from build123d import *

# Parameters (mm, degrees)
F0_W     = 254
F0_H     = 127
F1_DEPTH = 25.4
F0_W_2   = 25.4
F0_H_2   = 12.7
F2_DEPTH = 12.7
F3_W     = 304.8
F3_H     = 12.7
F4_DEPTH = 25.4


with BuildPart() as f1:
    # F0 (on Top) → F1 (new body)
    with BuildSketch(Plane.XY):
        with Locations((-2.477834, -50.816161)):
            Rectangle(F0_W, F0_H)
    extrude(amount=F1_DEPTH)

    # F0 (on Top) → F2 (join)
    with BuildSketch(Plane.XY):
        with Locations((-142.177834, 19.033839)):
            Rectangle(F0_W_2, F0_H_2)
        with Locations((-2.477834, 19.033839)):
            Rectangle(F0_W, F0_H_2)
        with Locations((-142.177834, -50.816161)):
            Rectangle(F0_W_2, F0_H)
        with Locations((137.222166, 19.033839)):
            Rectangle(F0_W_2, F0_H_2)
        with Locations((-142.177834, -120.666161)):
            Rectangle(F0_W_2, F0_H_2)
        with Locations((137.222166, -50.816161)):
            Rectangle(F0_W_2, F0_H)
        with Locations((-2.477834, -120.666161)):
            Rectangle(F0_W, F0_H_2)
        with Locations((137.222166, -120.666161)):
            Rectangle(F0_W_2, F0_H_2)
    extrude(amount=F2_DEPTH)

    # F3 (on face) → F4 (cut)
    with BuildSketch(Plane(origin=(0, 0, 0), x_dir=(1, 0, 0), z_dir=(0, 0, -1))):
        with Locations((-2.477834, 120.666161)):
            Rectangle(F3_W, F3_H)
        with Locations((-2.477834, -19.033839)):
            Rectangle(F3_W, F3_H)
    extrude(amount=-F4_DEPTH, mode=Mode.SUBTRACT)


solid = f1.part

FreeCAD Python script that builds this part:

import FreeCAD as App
import Part
import Sketcher

V = App.Vector
Q = App.Units.Quantity

doc = App.newDocument("Part")
body = doc.addObject("PartDesign::Body", "Body")

# Sketch on XY plane
sketch1 = doc.addObject("Sketcher::SketchObject", "Sketch")
body.addObject(sketch1)
sketch1.AttachmentSupport = (doc.XY_Plane, [""])
sketch1.MapMode = "FlatFace"
sketch1.addGeometry([
    Part.LineSegment(V(-129.477834, 12.683839, 0), V(-129.477834, -114.316161, 0)),
    Part.LineSegment(V(-129.477834, -114.316161, 0), V(124.522166, -114.316161, 0)),
    Part.LineSegment(V(124.522166, -114.316161, 0), V(124.522166, 12.683839, 0)),
    Part.LineSegment(V(124.522166, 12.683839, 0), V(-129.477834, 12.683839, 0)),
], False)
sketch1.addConstraint([
    Sketcher.Constraint("Coincident", 0, 2, 1, 1),
    Sketcher.Constraint("Coincident", 1, 2, 2, 1),
    Sketcher.Constraint("Coincident", 2, 2, 3, 1),
    Sketcher.Constraint("Coincident", 3, 2, 0, 1),
    Sketcher.Constraint("Vertical", 0),
    Sketcher.Constraint("Horizontal", 1),
    Sketcher.Constraint("Vertical", 2),
    Sketcher.Constraint("Horizontal", 3),
    Sketcher.Constraint("DistanceX", 1, 1, 1, 2, Q("10 in")),
    Sketcher.Constraint("DistanceY", 0, 2, 0, 1, Q("5 in")),
    Sketcher.Constraint("DistanceY", 0, 2, -1, 1, 114.316161),
    Sketcher.Constraint("DistanceX", 0, 2, -1, 1, 129.477834),
])
pad1 = doc.addObject("PartDesign::Pad", "Pad")
body.addObject(pad1)
pad1.Profile = sketch1
pad1.Length = Q("1 in")

# Sketch on XY plane
sketch2 = doc.addObject("Sketcher::SketchObject", "Sketch001")
body.addObject(sketch2)
sketch2.AttachmentSupport = (doc.XY_Plane, [""])
sketch2.MapMode = "FlatFace"
sketch2.addGeometry([
    Part.LineSegment(V(-154.877834, -127.016161, 0), V(149.922166, -127.016161, 0)),  # 0
    Part.LineSegment(V(149.922166, -127.016161, 0), V(149.922166, 25.383839, 0)),  # 1
    Part.LineSegment(V(149.922166, 25.383839, 0), V(-154.877834, 25.383839, 0)),  # 2
    Part.LineSegment(V(-154.877834, 25.383839, 0), V(-154.877834, -127.016161, 0)),  # 3
    Part.LineSegment(V(124.522166, -114.316161, 0), V(-129.477834, -114.316161, 0)),  # 4
    Part.LineSegment(V(-129.477834, -114.316161, 0), V(-129.477834, 12.683839, 0)),  # 5
    Part.LineSegment(V(-129.477834, 12.683839, 0), V(124.522166, 12.683839, 0)),  # 6
    Part.LineSegment(V(124.522166, 12.683839, 0), V(124.522166, -114.316161, 0)),  # 7
], False)
sketch2.addConstraint([
    Sketcher.Constraint("Coincident", 0, 2, 1, 1),
    Sketcher.Constraint("Coincident", 1, 2, 2, 1),
    Sketcher.Constraint("Coincident", 2, 2, 3, 1),
    Sketcher.Constraint("Coincident", 3, 2, 0, 1),
    Sketcher.Constraint("Coincident", 4, 2, 5, 1),
    Sketcher.Constraint("Coincident", 5, 2, 6, 1),
    Sketcher.Constraint("Coincident", 6, 2, 7, 1),
    Sketcher.Constraint("Coincident", 7, 2, 4, 1),
    Sketcher.Constraint("Horizontal", 0),
    Sketcher.Constraint("Vertical", 1),
    Sketcher.Constraint("Horizontal", 2),
    Sketcher.Constraint("Vertical", 3),
    Sketcher.Constraint("Horizontal", 4),
    Sketcher.Constraint("Vertical", 5),
    Sketcher.Constraint("Horizontal", 6),
    Sketcher.Constraint("Vertical", 7),
    Sketcher.Constraint("DistanceX", 0, 1, 0, 2, Q("12 in")),
    Sketcher.Constraint("DistanceX", 4, 2, 4, 1, Q("10 in")),
    Sketcher.Constraint("DistanceY", 1, 1, 1, 2, Q("6 in")),
    Sketcher.Constraint("DistanceY", 5, 1, 5, 2, Q("5 in")),
    Sketcher.Constraint("DistanceX", 3, 2, 4, 2, Q("1 in")),
    Sketcher.Constraint("DistanceY", 3, 2, 4, 2, Q("0.5 in")),
    Sketcher.Constraint("DistanceY", 0, 2, -1, 1, 127.016161),
    Sketcher.Constraint("DistanceX", -1, 1, 0, 2, 149.922166),
])
pad2 = doc.addObject("PartDesign::Pad", "Pad001")
body.addObject(pad2)
pad2.Profile = sketch2
pad2.Length = Q("0.5 in")

# Sketch on XY plane
sketch3 = doc.addObject("Sketcher::SketchObject", "Sketch002")
body.addObject(sketch3)
sketch3.AttachmentSupport = (doc.XY_Plane, [""])
sketch3.MapMode = "FlatFace"
sketch3.addGeometry([
    Part.LineSegment(V(-154.877834, -127.016161, 0), V(-154.877834, -114.316161, 0)),  # 0
    Part.LineSegment(V(-154.877834, -114.316161, 0), V(149.922166, -114.316161, 0)),  # 1
    Part.LineSegment(V(149.922166, -114.316161, 0), V(149.922166, -127.016161, 0)),  # 2
    Part.LineSegment(V(149.922166, -127.016161, 0), V(-154.877834, -127.016161, 0)),  # 3
    Part.LineSegment(V(-154.877834, 12.683839, 0), V(-154.877834, 25.383839, 0)),  # 4
    Part.LineSegment(V(-154.877834, 25.383839, 0), V(149.922166, 25.383839, 0)),  # 5
    Part.LineSegment(V(149.922166, 25.383839, 0), V(149.922166, 12.683839, 0)),  # 6
    Part.LineSegment(V(149.922166, 12.683839, 0), V(-154.877834, 12.683839, 0)),  # 7
], False)
sketch3.addConstraint([
    Sketcher.Constraint("Coincident", 0, 2, 1, 1),
    Sketcher.Constraint("Coincident", 1, 2, 2, 1),
    Sketcher.Constraint("Coincident", 2, 2, 3, 1),
    Sketcher.Constraint("Coincident", 3, 2, 0, 1),
    Sketcher.Constraint("Coincident", 4, 2, 5, 1),
    Sketcher.Constraint("Coincident", 5, 2, 6, 1),
    Sketcher.Constraint("Coincident", 6, 2, 7, 1),
    Sketcher.Constraint("Coincident", 7, 2, 4, 1),
    Sketcher.Constraint("Vertical", 0),
    Sketcher.Constraint("Horizontal", 1),
    Sketcher.Constraint("Vertical", 2),
    Sketcher.Constraint("Horizontal", 3),
    Sketcher.Constraint("Vertical", 4),
    Sketcher.Constraint("Horizontal", 5),
    Sketcher.Constraint("Vertical", 6),
    Sketcher.Constraint("Horizontal", 7),
    Sketcher.Constraint("Vertical", 3, 2, 4, 2),
    Sketcher.Constraint("Vertical", 2, 2, 5, 2),
    Sketcher.Constraint("Equal", 2, 4),
    Sketcher.Constraint("DistanceX", 1, 1, 1, 2, Q("12 in")),
    Sketcher.Constraint("DistanceY", 0, 1, 0, 2, Q("0.5 in")),
    Sketcher.Constraint("DistanceY", 3, 2, 4, 2, Q("6 in")),
    Sketcher.Constraint("DistanceY", 0, 2, -1, 1, 114.316161),
    Sketcher.Constraint("DistanceX", 0, 2, -1, 1, 154.877834),
])
pocket1 = doc.addObject("PartDesign::Pocket", "Pocket")
body.addObject(pocket1)
pocket1.Profile = sketch3
pocket1.Length = Q("1 in")
pocket1.Reversed = True

doc.recompute()
